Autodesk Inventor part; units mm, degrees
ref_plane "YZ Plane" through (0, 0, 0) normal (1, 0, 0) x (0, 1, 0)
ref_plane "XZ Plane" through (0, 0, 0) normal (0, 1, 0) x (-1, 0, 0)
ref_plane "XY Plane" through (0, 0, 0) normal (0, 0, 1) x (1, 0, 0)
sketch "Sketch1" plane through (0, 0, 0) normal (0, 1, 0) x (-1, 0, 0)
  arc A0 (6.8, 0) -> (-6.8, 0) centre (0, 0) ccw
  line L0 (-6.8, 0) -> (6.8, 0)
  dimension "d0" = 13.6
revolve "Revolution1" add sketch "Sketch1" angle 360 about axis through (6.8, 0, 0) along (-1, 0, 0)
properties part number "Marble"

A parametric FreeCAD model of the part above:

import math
import FreeCAD as App
import Part
import Sketcher

doc = App.newDocument("Part")
body = doc.addObject("PartDesign::Body", "Body")

# Sketch on XZ plane
sketch1 = body.newObject("Sketcher::SketchObject", "Sketch")
sketch1.AttachmentSupport = (doc.getObject("XZ_Plane"), [""])
sketch1.MapMode = "FlatFace"
sketch1.addGeometry([
    Part.LineSegment(App.Vector(6.8, 0, 0), App.Vector(-6.8, 0, 0)),
    Part.ArcOfCircle(Part.Circle(App.Vector(0, 0, 0), App.Vector(0, 0, 1), 6.8), math.radians(0), math.radians(180)),
], False)
sketch1.addConstraint([
    Sketcher.Constraint("Coincident", 0, 1, 1, 1),
    Sketcher.Constraint("Coincident", 1, 2, 0, 2),
    Sketcher.Constraint("Horizontal", 0),
    Sketcher.Constraint("Coincident", 1, 3, -1, 1),
    Sketcher.Constraint("PointOnObject", 0, 1, -1),
    Sketcher.Constraint("Radius", 1, 6.8),
])
revolution = body.newObject("PartDesign::Revolution", "Revolution")
revolution.Profile = sketch1
revolution.ReferenceAxis = (sketch1, ["H_Axis"])
revolution.Angle = 360

doc.recompute()
